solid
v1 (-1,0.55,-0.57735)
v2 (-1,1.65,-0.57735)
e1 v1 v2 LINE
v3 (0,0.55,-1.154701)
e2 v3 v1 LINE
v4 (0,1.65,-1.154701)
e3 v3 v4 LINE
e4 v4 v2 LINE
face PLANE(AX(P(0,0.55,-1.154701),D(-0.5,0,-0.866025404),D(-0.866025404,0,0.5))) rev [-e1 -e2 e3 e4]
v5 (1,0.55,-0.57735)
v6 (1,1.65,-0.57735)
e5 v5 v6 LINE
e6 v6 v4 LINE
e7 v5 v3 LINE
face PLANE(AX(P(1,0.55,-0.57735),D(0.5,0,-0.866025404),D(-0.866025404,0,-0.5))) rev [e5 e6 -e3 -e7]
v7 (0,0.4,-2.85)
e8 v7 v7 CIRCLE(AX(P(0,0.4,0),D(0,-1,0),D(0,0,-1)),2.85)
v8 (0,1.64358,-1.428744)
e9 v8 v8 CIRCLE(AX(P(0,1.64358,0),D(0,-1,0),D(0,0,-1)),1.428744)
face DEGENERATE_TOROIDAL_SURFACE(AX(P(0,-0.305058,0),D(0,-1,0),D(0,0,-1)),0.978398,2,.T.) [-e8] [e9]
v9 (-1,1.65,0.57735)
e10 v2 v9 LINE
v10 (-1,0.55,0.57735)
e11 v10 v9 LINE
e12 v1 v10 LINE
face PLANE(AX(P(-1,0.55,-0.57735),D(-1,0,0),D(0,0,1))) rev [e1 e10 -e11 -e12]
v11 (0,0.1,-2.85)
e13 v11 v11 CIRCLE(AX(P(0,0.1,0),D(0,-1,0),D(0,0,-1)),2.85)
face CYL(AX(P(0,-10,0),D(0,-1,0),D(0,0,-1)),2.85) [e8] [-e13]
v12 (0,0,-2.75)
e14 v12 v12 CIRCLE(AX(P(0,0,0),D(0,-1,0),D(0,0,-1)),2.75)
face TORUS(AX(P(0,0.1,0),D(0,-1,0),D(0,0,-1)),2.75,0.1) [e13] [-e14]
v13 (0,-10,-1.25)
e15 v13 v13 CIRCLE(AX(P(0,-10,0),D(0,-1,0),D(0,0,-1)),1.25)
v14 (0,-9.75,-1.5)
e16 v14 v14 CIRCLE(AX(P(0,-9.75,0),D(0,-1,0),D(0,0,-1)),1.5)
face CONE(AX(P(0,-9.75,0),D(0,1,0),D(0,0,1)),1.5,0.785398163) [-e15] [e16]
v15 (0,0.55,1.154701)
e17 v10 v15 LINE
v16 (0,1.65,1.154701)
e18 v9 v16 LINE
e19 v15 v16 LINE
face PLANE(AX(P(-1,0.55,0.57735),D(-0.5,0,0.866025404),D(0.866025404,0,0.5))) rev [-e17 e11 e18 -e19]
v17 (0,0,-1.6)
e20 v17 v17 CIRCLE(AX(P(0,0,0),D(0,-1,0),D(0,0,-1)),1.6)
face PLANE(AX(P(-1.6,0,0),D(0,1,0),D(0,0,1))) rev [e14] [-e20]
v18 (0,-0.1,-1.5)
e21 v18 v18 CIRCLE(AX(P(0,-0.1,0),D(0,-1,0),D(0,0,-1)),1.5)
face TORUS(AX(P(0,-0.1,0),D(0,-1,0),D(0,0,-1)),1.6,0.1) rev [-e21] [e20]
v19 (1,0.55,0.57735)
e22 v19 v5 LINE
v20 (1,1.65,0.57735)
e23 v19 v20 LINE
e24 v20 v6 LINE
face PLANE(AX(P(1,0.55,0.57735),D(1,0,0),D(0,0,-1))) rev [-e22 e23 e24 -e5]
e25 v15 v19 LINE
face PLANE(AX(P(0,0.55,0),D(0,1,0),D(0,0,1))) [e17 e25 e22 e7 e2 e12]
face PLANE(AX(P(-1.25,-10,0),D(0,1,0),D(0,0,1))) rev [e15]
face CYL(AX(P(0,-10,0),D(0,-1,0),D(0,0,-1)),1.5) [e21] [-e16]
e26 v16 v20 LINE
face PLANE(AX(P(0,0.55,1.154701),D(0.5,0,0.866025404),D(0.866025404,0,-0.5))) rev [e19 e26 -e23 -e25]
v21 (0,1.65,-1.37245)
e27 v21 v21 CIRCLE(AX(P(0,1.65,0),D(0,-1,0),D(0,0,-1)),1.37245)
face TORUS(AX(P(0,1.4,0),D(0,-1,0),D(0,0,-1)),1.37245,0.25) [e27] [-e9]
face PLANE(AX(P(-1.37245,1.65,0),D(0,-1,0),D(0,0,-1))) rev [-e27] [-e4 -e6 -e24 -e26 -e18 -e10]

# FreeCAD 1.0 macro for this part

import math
import FreeCAD as App
import Part
import Sketcher

V = App.Vector
Q = App.Units.Quantity

doc = App.newDocument("Part")
body = doc.addObject("PartDesign::Body", "Body")

sketch1 = doc.addObject("Sketcher::SketchObject", "Sketch")
body.addObject(sketch1)
sketch1.AttachmentSupport = (doc.XY_Plane, [""])
sketch1.MapMode = "FlatFace"
sketch1.addGeometry([
    Part.LineSegment(V(-1.5, -0.1, 0), V(-1.5, -9.75, 0)),
    Part.LineSegment(V(-1.5, -9.75, 0), V(-1.25, -10, 0)),
    Part.LineSegment(V(-1.25, -10, 0), V(0, -10, 0)),
    Part.LineSegment(V(0, -10, 0), V(0, 1.65, 0)),
    Part.LineSegment(V(0, 1.65, 0), V(-1.37245, 1.65, 0)),
    Part.ArcOfCircle(Part.Circle(V(-1.37245, 1.4, 0), V(0, 0, 1), 0.25), math.radians(90.000002), math.radians(103.013027)),
    Part.ArcOfCircle(Part.Circle(V(-0.978398, -0.305058, 0), V(0, 0, 1), 2), math.radians(103.01303), math.radians(159.35792)),
    Part.LineSegment(V(-2.85, 0.4, 0), V(-2.85, 0.1, 0)),
    Part.ArcOfCircle(Part.Circle(V(-2.75, 0.1, 0), V(0, 0, 1), 0.1), math.radians(180), math.radians(270)),
    Part.LineSegment(V(-2.75, 0, 0), V(-1.6, 0, 0)),
    Part.ArcOfCircle(Part.Circle(V(-1.6, -0.1, 0), V(0, 0, 1), 0.1), math.radians(0), math.radians(90)),
], False)
sketch1.addConstraint([
    Sketcher.Constraint("Coincident", 0, 2, 1, 1),
    Sketcher.Constraint("Coincident", 1, 2, 2, 1),
    Sketcher.Constraint("Coincident", 2, 2, 3, 1),
    Sketcher.Constraint("Coincident", 3, 2, 4, 1),
    Sketcher.Constraint("Tangent", 4, 2, 5, 1),
    Sketcher.Constraint("Tangent", 5, 2, 6, 1),
    Sketcher.Constraint("Coincident", 6, 2, 7, 1),
    Sketcher.Constraint("Tangent", 7, 2, 8, 1),
    Sketcher.Constraint("Tangent", 8, 2, 9, 1),
    Sketcher.Constraint("Tangent", 9, 2, 10, 2),
    Sketcher.Constraint("Tangent", 10, 1, 0, 1),
    Sketcher.Constraint("Vertical", 0),
    Sketcher.Constraint("Horizontal", 2),
    Sketcher.Constraint("Vertical", 3),
    Sketcher.Constraint("Horizontal", 4),
    Sketcher.Constraint("Vertical", 7),
    Sketcher.Constraint("Horizontal", 9),
    Sketcher.Constraint("Equal", 8, 10),
    Sketcher.Constraint("PointOnObject", 2, 2, -2),
    Sketcher.Constraint("PointOnObject", 8, 2, -1),
    Sketcher.Constraint("Radius", 6, Q("2 mm")),
    Sketcher.Constraint("Radius", 8, Q("0.1 mm")),
    Sketcher.Constraint("Angle", 1, Q("-45 deg")),
    Sketcher.Constraint("Radius", 5, Q("0.25 mm")),
    Sketcher.Constraint("DistanceY", 7, 2, 7, 1, Q("0.3 mm")),
    Sketcher.Constraint("DistanceY", 1, 2, -1, 1, Q("10 mm")),
    Sketcher.Constraint("DistanceY", 6, 2, 5, 3, Q("1 mm")),
    Sketcher.Constraint("DistanceX", 2, 1, 2, 2, Q("1.25 mm")),
    Sketcher.Constraint("DistanceX", 9, 1, 9, 2, Q("1.15 mm")),
    Sketcher.Constraint("DistanceY", 0, 2, 0, 1, Q("9.65 mm")),
    Sketcher.Constraint("DistanceX", 4, 2, 4, 1, Q("1.37245 mm")),
])
revolution = doc.addObject("PartDesign::Revolution", "Revolution")
body.addObject(revolution)
revolution.Profile = sketch1
revolution.ReferenceAxis = (sketch1, ["V_Axis"])
revolution.Angle = 360

sketch2 = doc.addObject("Sketcher::SketchObject", "Sketch001")
body.addObject(sketch2)
sketch2.AttachmentSupport = (doc.XZ_Plane, [""])
sketch2.MapMode = "FlatFace"
sketch2.AttachmentOffset = App.Placement(V(0, 0, -1.65), App.Rotation())
sketch2.addGeometry([
    Part.LineSegment(V(-1, -0.57735, 0), V(-1, 0.57735, 0)),
    Part.LineSegment(V(-1, 0.57735, 0), V(0, 1.154701, 0)),
    Part.LineSegment(V(0, 1.154701, 0), V(1, 0.57735, 0)),
    Part.LineSegment(V(1, 0.57735, 0), V(1, -0.57735, 0)),
    Part.LineSegment(V(1, -0.57735, 0), V(0, -1.154701, 0)),
    Part.LineSegment(V(0, -1.154701, 0), V(-1, -0.57735, 0)),
], False)
sketch2.addConstraint([
    Sketcher.Constraint("Coincident", 0, 2, 1, 1),
    Sketcher.Constraint("Coincident", 1, 2, 2, 1),
    Sketcher.Constraint("Coincident", 2, 2, 3, 1),
    Sketcher.Constraint("Coincident", 3, 2, 4, 1),
    Sketcher.Constraint("Coincident", 4, 2, 5, 1),
    Sketcher.Constraint("Coincident", 5, 2, 0, 1),
    Sketcher.Constraint("Vertical", 0),
    Sketcher.Constraint("Vertical", 3),
    Sketcher.Constraint("Symmetric", 0, 2, 3, 2, -1, 1),
    Sketcher.Constraint("Symmetric", 1, 2, 4, 2, -1, 1),
    Sketcher.Constraint("PointOnObject", 1, 2, -2),
    Sketcher.Constraint("Parallel", 2, 5),
    Sketcher.Constraint("Horizontal", 0, 2, 2, 2),
    Sketcher.Constraint("Angle", 1, Q("30 deg")),
    Sketcher.Constraint("DistanceX", 0, 2, -1, 1, Q("1 mm")),
    Sketcher.Constraint("DistanceY", 0, 1, 0, 2, Q("1.154701 mm")),
])
pocket1 = doc.addObject("PartDesign::Pocket", "Pocket")
body.addObject(pocket1)
pocket1.Profile = sketch2
pocket1.Length = 1.1
pocket1.Reversed = True

doc.recompute()
